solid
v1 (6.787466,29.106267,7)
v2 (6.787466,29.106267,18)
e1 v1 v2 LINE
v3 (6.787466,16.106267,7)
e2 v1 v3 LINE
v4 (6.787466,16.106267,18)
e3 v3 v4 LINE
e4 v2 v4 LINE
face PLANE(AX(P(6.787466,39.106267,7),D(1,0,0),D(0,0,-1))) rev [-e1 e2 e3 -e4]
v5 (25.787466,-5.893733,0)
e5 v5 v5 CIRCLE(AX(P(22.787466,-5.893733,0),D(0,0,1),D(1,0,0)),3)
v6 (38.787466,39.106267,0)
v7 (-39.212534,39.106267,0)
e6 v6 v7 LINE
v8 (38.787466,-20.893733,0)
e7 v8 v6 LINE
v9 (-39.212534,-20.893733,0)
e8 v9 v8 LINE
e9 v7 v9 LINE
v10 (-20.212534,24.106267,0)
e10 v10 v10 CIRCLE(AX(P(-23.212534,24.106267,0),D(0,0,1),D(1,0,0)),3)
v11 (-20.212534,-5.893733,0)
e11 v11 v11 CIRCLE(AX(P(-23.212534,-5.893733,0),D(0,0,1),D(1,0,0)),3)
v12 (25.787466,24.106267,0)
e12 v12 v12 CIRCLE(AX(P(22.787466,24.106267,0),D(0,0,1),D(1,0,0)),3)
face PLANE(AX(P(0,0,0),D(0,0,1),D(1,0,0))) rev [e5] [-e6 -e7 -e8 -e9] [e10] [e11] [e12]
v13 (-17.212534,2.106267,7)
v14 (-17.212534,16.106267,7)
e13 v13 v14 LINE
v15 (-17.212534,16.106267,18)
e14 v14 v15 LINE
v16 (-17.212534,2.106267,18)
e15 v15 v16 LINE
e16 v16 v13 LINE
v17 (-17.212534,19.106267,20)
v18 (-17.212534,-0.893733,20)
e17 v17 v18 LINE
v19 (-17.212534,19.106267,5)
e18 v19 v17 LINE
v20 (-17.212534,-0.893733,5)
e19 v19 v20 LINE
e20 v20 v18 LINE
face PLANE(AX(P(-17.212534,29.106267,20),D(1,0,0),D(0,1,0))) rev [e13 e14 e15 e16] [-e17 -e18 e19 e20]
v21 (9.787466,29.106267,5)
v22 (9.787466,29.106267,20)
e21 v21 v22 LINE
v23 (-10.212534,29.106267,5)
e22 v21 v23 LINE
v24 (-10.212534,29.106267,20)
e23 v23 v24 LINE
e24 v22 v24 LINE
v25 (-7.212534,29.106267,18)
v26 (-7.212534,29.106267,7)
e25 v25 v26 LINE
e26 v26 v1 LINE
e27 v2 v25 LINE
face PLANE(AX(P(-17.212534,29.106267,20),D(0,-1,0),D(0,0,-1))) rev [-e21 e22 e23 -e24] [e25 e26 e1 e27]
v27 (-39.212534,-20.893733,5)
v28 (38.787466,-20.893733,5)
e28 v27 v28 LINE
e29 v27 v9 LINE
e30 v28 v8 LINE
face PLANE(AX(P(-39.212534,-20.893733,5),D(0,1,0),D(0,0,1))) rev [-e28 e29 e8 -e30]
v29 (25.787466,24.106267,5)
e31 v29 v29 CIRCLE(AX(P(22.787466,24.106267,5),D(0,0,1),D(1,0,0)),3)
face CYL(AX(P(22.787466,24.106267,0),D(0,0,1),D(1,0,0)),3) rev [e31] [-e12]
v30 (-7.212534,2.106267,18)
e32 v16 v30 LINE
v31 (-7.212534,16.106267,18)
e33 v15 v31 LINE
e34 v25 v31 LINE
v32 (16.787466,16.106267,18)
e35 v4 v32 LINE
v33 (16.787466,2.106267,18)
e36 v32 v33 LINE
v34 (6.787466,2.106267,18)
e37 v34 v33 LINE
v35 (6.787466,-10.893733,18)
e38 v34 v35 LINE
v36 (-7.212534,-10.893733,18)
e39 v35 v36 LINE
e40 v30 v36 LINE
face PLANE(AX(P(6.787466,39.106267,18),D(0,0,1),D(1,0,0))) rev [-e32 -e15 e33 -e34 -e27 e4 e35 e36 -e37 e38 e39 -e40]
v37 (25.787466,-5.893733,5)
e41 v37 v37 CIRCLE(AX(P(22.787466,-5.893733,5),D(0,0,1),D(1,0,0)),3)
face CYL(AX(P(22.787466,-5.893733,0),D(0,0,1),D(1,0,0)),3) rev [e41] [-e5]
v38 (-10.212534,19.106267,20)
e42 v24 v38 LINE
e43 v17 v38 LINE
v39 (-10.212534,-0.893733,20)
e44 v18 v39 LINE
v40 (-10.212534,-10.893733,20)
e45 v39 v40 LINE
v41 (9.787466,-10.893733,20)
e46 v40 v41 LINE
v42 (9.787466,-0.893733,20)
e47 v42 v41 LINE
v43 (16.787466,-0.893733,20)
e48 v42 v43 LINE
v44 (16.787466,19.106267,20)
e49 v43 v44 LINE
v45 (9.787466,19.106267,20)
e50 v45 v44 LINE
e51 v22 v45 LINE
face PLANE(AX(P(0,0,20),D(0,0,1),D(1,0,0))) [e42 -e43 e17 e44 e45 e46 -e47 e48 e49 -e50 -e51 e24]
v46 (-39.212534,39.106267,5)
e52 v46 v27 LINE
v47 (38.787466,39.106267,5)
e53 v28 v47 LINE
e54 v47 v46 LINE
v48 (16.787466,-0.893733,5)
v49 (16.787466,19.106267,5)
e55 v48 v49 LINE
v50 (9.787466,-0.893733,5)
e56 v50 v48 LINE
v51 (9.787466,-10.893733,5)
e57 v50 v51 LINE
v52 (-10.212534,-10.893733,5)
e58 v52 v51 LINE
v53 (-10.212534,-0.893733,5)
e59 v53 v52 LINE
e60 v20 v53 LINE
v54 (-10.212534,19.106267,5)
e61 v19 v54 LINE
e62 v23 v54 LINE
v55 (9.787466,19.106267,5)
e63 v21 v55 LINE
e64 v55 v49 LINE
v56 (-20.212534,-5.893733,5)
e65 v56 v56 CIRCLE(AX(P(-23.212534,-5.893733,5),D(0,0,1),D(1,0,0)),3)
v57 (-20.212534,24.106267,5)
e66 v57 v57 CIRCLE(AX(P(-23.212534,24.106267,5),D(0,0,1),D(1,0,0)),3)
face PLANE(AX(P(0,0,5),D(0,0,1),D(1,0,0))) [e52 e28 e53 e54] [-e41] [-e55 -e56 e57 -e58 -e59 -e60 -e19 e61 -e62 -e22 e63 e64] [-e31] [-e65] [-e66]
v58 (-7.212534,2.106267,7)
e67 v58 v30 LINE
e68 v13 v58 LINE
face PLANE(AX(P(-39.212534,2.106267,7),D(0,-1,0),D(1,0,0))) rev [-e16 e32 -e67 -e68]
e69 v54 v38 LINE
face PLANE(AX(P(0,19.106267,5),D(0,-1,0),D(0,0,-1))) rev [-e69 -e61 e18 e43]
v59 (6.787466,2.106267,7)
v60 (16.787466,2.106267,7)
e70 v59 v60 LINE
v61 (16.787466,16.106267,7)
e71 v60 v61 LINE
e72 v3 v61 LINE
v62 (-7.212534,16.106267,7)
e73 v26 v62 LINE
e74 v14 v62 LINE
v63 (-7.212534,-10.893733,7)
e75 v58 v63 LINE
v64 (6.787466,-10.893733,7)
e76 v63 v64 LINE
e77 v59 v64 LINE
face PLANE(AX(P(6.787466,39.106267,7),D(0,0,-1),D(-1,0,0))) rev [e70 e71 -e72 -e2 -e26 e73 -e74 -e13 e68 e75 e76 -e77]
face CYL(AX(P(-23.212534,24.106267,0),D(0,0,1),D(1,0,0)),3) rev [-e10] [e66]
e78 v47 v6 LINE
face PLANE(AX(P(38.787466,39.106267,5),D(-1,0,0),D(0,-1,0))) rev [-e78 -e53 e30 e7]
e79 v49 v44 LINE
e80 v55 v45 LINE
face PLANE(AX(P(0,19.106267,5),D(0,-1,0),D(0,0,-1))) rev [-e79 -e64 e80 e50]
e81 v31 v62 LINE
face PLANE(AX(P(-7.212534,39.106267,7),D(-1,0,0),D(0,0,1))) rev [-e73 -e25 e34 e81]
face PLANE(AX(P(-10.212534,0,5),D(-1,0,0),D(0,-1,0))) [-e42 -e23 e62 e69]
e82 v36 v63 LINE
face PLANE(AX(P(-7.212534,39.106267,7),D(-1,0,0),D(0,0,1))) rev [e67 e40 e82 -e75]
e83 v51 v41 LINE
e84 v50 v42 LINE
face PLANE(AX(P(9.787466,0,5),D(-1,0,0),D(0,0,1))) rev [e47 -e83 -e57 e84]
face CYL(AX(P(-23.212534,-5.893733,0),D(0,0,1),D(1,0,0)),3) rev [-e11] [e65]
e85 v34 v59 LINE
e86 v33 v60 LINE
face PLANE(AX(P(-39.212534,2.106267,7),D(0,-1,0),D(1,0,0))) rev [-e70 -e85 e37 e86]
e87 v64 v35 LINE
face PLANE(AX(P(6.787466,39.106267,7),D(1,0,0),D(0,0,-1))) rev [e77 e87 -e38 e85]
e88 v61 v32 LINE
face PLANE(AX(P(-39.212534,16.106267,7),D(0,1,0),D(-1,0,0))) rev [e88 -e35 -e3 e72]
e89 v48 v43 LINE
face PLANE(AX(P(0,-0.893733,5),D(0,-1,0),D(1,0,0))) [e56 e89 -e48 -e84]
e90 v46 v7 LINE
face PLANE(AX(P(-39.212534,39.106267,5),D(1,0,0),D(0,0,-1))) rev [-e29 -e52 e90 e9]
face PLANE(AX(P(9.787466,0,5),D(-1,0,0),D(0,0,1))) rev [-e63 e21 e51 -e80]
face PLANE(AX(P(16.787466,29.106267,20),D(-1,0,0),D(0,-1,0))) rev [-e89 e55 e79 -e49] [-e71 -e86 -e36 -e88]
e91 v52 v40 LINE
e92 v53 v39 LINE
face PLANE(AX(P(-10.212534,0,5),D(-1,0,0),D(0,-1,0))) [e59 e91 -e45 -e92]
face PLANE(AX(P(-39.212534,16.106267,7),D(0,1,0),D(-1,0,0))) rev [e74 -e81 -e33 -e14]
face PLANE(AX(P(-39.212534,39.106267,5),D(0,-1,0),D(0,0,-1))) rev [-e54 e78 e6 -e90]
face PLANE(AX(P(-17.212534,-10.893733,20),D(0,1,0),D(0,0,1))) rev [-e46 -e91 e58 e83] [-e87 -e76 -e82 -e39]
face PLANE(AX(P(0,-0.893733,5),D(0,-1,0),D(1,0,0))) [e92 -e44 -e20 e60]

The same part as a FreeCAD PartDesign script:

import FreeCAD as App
import Part
import Sketcher

doc = App.newDocument("Part")
body = doc.addObject("PartDesign::Body", "Body")

# Sketch on XY plane
sketch1 = body.newObject("Sketcher::SketchObject", "Sketch")
sketch1.AttachmentSupport = (doc.getObject("XY_Plane"), [""])
sketch1.MapMode = "FlatFace"
sketch1.addGeometry([
    Part.LineSegment(App.Vector(-39, 39, 0), App.Vector(-39, -21, 0)),
    Part.LineSegment(App.Vector(-39, -21, 0), App.Vector(39, -21, 0)),
    Part.LineSegment(App.Vector(39, -21, 0), App.Vector(39, 39, 0)),
    Part.LineSegment(App.Vector(39, 39, 0), App.Vector(-39, 39, 0)),
], False)
sketch1.addConstraint([
    Sketcher.Constraint("Coincident", 0, 2, 1, 1),
    Sketcher.Constraint("Coincident", 1, 2, 2, 1),
    Sketcher.Constraint("Coincident", 2, 2, 3, 1),
    Sketcher.Constraint("Coincident", 3, 2, 0, 1),
    Sketcher.Constraint("Vertical", 0),
    Sketcher.Constraint("Horizontal", 1),
    Sketcher.Constraint("Vertical", 2),
    Sketcher.Constraint("Horizontal", 3),
    Sketcher.Constraint("DistanceX", 1, 1, 1, 2, 78.0),
    Sketcher.Constraint("DistanceY", 0, 2, 0, 1, 60.0),
    Sketcher.Constraint("DistanceX", 0, 2, -1, 1, 39.212534),
    Sketcher.Constraint("DistanceY", 0, 2, -1, 1, 20.893733),
])
pad1 = body.newObject("PartDesign::Pad", "Pad")
pad1.Profile = sketch1
pad1.Length = 5

# Sketch on XY plane
sketch2 = body.newObject("Sketcher::SketchObject", "Sketch001")
sketch2.AttachmentSupport = (doc.getObject("XY_Plane"), [""])
sketch2.MapMode = "FlatFace"
sketch2.AttachmentOffset = App.Placement(App.Vector(0, 0, 5), App.Rotation())
sketch2.addGeometry([
    Part.LineSegment(App.Vector(-17, 29, 0), App.Vector(-17, -11, 0)),
    Part.LineSegment(App.Vector(-17, -11, 0), App.Vector(17, -11, 0)),
    Part.LineSegment(App.Vector(17, -11, 0), App.Vector(17, 29, 0)),
    Part.LineSegment(App.Vector(17, 29, 0), App.Vector(-17, 29, 0)),
], False)
sketch2.addConstraint([
    Sketcher.Constraint("Coincident", 0, 2, 1, 1),
    Sketcher.Constraint("Coincident", 1, 2, 2, 1),
    Sketcher.Constraint("Coincident", 2, 2, 3, 1),
    Sketcher.Constraint("Coincident", 3, 2, 0, 1),
    Sketcher.Constraint("Vertical", 0),
    Sketcher.Constraint("Horizontal", 1),
    Sketcher.Constraint("Vertical", 2),
    Sketcher.Constraint("Horizontal", 3),
    Sketcher.Constraint("DistanceX", 1, 1, 1, 2, 34.0),
    Sketcher.Constraint("DistanceY", 0, 2, 0, 1, 40.0),
    Sketcher.Constraint("DistanceX", 0, 2, -1, 1, 17.212534),
    Sketcher.Constraint("DistanceY", 0, 2, -1, 1, 10.893733),
])
pad2 = body.newObject("PartDesign::Pad", "Pad001")
pad2.Profile = sketch2
pad2.Length = 15

# Sketch on XY plane
sketch3 = body.newObject("Sketcher::SketchObject", "Sketch002")
sketch3.AttachmentSupport = (doc.getObject("XY_Plane"), [""])
sketch3.MapMode = "FlatFace"
sketch3.AttachmentOffset = App.Placement(App.Vector(0, 0, 20), App.Rotation())
sketch3.addGeometry([
    Part.LineSegment(App.Vector(-17, 29, 0), App.Vector(-17, 19, 0)),  # 0
    Part.LineSegment(App.Vector(-17, 19, 0), App.Vector(-10, 19, 0)),  # 1
    Part.LineSegment(App.Vector(-10, 19, 0), App.Vector(-10, 29, 0)),  # 2
    Part.LineSegment(App.Vector(-10, 29, 0), App.Vector(-17, 29, 0)),  # 3
    Part.LineSegment(App.Vector(10, 29, 0), App.Vector(10, 19, 0)),  # 4
    Part.LineSegment(App.Vector(10, 19, 0), App.Vector(17, 19, 0)),  # 5
    Part.LineSegment(App.Vector(17, 19, 0), App.Vector(17, 29, 0)),  # 6
    Part.LineSegment(App.Vector(17, 29, 0), App.Vector(10, 29, 0)),  # 7
    Part.LineSegment(App.Vector(10, -1, 0), App.Vector(10, -11, 0)),  # 8
    Part.LineSegment(App.Vector(10, -11, 0), App.Vector(17, -11, 0)),  # 9
    Part.LineSegment(App.Vector(17, -11, 0), App.Vector(17, -1, 0)),  # 10
    Part.LineSegment(App.Vector(17, -1, 0), App.Vector(10, -1, 0)),  # 11
    Part.LineSegment(App.Vector(-17, -1, 0), App.Vector(-17, -11, 0)),  # 12
    Part.LineSegment(App.Vector(-17, -11, 0), App.Vector(-10, -11, 0)),  # 13
    Part.LineSegment(App.Vector(-10, -11, 0), App.Vector(-10, -1, 0)),  # 14
    Part.LineSegment(App.Vector(-10, -1, 0), App.Vector(-17, -1, 0)),  # 15
], False)
sketch3.addConstraint([
    Sketcher.Constraint("Coincident", 0, 2, 1, 1),
    Sketcher.Constraint("Coincident", 1, 2, 2, 1),
    Sketcher.Constraint("Coincident", 2, 2, 3, 1),
    Sketcher.Constraint("Coincident", 3, 2, 0, 1),
    Sketcher.Constraint("Coincident", 4, 2, 5, 1),
    Sketcher.Constraint("Coincident", 5, 2, 6, 1),
    Sketcher.Constraint("Coincident", 6, 2, 7, 1),
    Sketcher.Constraint("Coincident", 7, 2, 4, 1),
    Sketcher.Constraint("Coincident", 8, 2, 9, 1),
    Sketcher.Constraint("Coincident", 9, 2, 10, 1),
    Sketcher.Constraint("Coincident", 10, 2, 11, 1),
    Sketcher.Constraint("Coincident", 11, 2, 8, 1),
    Sketcher.Constraint("Coincident", 12, 2, 13, 1),
    Sketcher.Constraint("Coincident", 13, 2, 14, 1),
    Sketcher.Constraint("Coincident", 14, 2, 15, 1),
    Sketcher.Constraint("Coincident", 15, 2, 12, 1),
    Sketcher.Constraint("Vertical", 0),
    Sketcher.Constraint("Horizontal", 1),
    Sketcher.Constraint("Vertical", 2),
    Sketcher.Constraint("Horizontal", 3),
    Sketcher.Constraint("Vertical", 4),
    Sketcher.Constraint("Horizontal", 5),
    Sketcher.Constraint("Vertical", 6),
    Sketcher.Constraint("Horizontal", 7),
    Sketcher.Constraint("Vertical", 8),
    Sketcher.Constraint("Horizontal", 9),
    Sketcher.Constraint("Vertical", 10),
    Sketcher.Constraint("Horizontal", 11),
    Sketcher.Constraint("Vertical", 12),
    Sketcher.Constraint("Horizontal", 13),
    Sketcher.Constraint("Vertical", 14),
    Sketcher.Constraint("Horizontal", 15),
    Sketcher.Constraint("Horizontal", 1, 2, 4, 2),
    Sketcher.Constraint("Horizontal", 3, 2, 6, 2),
    Sketcher.Constraint("Horizontal", 9, 2, 12, 2),
    Sketcher.Constraint("Horizontal", 11, 2, 14, 2),
    Sketcher.Constraint("Vertical", 7, 2, 8, 2),
    Sketcher.Constraint("Vertical", 6, 2, 9, 2),
    Sketcher.Constraint("Vertical", 3, 2, 12, 2),
    Sketcher.Constraint("Vertical", 2, 2, 13, 2),
    Sketcher.Constraint("Equal", 3, 5),
    Sketcher.Constraint("Equal", 6, 8),
    Sketcher.Constraint("DistanceX", 1, 1, 1, 2, 7.0),
    Sketcher.Constraint("DistanceY", 0, 2, 0, 1, 10.0),
    Sketcher.Constraint("DistanceX", 1, 2, 4, 2, 20.0),
    Sketcher.Constraint("DistanceY", 8, 2, 4, 2, 30.0),
    Sketcher.Constraint("DistanceX", 0, 2, -1, 1, 17.212534),
    Sketcher.Constraint("DistanceY", -1, 1, 0, 2, 19.106267),
])
pocket1 = body.newObject("PartDesign::Pocket", "Pocket")
pocket1.Profile = sketch3
pocket1.Length = 15

# Sketch on XZ plane
sketch4 = body.newObject("Sketcher::SketchObject", "Sketch003")
sketch4.AttachmentSupport = (doc.getObject("XZ_Plane"), [""])
sketch4.MapMode = "FlatFace"
sketch4.AttachmentOffset = App.Placement(App.Vector(0, 0, 10.893733), App.Rotation())
sketch4.addGeometry([
    Part.LineSegment(App.Vector(-7, 18, 0), App.Vector(-7, 7, 0)),
    Part.LineSegment(App.Vector(-7, 7, 0), App.Vector(7, 7, 0)),
    Part.LineSegment(App.Vector(7, 7, 0), App.Vector(7, 18, 0)),
    Part.LineSegment(App.Vector(7, 18, 0), App.Vector(-7, 18, 0)),
], False)
sketch4.addConstraint([
    Sketcher.Constraint("Coincident", 0, 2, 1, 1),
    Sketcher.Constraint("Coincident", 1, 2, 2, 1),
    Sketcher.Constraint("Coincident", 2, 2, 3, 1),
    Sketcher.Constraint("Coincident", 3, 2, 0, 1),
    Sketcher.Constraint("Vertical", 0),
    Sketcher.Constraint("Horizontal", 1),
    Sketcher.Constraint("Vertical", 2),
    Sketcher.Constraint("Horizontal", 3),
    Sketcher.Constraint("DistanceX", 1, 1, 1, 2, 14.0),
    Sketcher.Constraint("DistanceY", 0, 2, 0, 1, 11.0),
    Sketcher.Constraint("DistanceY", -1, 1, 0, 2, 7.0),
    Sketcher.Constraint("DistanceX", 0, 2, -1, 1, 7.212534),
])
pocket2 = body.newObject("PartDesign::Pocket", "Pocket001")
pocket2.Profile = sketch4
pocket2.Type = "ThroughAll"

# Sketch on YZ plane
sketch5 = body.newObject("Sketcher::SketchObject", "Sketch004")
sketch5.AttachmentSupport = (doc.getObject("YZ_Plane"), [""])
sketch5.MapMode = "FlatFace"
sketch5.AttachmentOffset = App.Placement(App.Vector(0, 0, 16.787466), App.Rotation())
sketch5.addGeometry([
    Part.LineSegment(App.Vector(16, 18, 0), App.Vector(2, 18, 0)),
    Part.LineSegment(App.Vector(2, 18, 0), App.Vector(2, 7, 0)),
    Part.LineSegment(App.Vector(2, 7, 0), App.Vector(16, 7, 0)),
    Part.LineSegment(App.Vector(16, 7, 0), App.Vector(16, 18, 0)),
], False)
sketch5.addConstraint([
    Sketcher.Constraint("Coincident", 0, 2, 1, 1),
    Sketcher.Constraint("Coincident", 1, 2, 2, 1),
    Sketcher.Constraint("Coincident", 2, 2, 3, 1),
    Sketcher.Constraint("Coincident", 3, 2, 0, 1),
    Sketcher.Constraint("Horizontal", 0),
    Sketcher.Constraint("Vertical", 1),
    Sketcher.Constraint("Horizontal", 2),
    Sketcher.Constraint("Vertical", 3),
    Sketcher.Constraint("DistanceX", 0, 2, 0, 1, 14.0),
    Sketcher.Constraint("DistanceY", 1, 2, 1, 1, 11.0),
    Sketcher.Constraint("DistanceY", -1, 1, 0, 2, 18.0),
    Sketcher.Constraint("DistanceX", -1, 1, 0, 2, 2.106267),
])
pocket3 = body.newObject("PartDesign::Pocket", "Pocket002")
pocket3.Profile = sketch5
pocket3.Type = "ThroughAll"

# Sketch on XY plane
sketch6 = body.newObject("Sketcher::SketchObject", "Sketch005")
sketch6.AttachmentSupport = (doc.getObject("XY_Plane"), [""])
sketch6.MapMode = "FlatFace"
sketch6.AttachmentOffset = App.Placement(App.Vector(0, 0, 5), App.Rotation())
sketch6.addGeometry([
    Part.Circle(App.Vector(-23.2, 24.1, 0), App.Vector(0, 0, 1), 3),
    Part.Circle(App.Vector(22.8, 24.1, 0), App.Vector(0, 0, 1), 3),
    Part.Circle(App.Vector(22.8, -5.9, 0), App.Vector(0, 0, 1), 3),
    Part.Circle(App.Vector(-23.2, -5.9, 0), App.Vector(0, 0, 1), 3),
], False)
sketch6.addConstraint([
    Sketcher.Constraint("Equal", 0, 1),
    Sketcher.Constraint("Equal", 1, 2),
    Sketcher.Constraint("Equal", 2, 3),
    Sketcher.Constraint("Horizontal", 0, 3, 1, 3),
    Sketcher.Constraint("Horizontal", 2, 3, 3, 3),
    Sketcher.Constraint("Vertical", 1, 3, 2, 3),
    Sketcher.Constraint("Vertical", 0, 3, 3, 3),
    Sketcher.Constraint("Diameter", 0, 6.0),
    Sketcher.Constraint("DistanceX", 0, 3, 1, 3, 46.0),
    Sketcher.Constraint("DistanceY", 2, 3, 1, 3, 30.0),
    Sketcher.Constraint("DistanceX", 0, 3, -1, 1, 23.212534),
    Sketcher.Constraint("DistanceY", -1, 1, 0, 3, 24.106267),
])
pocket4 = body.newObject("PartDesign::Pocket", "Pocket003")
pocket4.Profile = sketch6
pocket4.Type = "ThroughAll"

doc.recompute()
